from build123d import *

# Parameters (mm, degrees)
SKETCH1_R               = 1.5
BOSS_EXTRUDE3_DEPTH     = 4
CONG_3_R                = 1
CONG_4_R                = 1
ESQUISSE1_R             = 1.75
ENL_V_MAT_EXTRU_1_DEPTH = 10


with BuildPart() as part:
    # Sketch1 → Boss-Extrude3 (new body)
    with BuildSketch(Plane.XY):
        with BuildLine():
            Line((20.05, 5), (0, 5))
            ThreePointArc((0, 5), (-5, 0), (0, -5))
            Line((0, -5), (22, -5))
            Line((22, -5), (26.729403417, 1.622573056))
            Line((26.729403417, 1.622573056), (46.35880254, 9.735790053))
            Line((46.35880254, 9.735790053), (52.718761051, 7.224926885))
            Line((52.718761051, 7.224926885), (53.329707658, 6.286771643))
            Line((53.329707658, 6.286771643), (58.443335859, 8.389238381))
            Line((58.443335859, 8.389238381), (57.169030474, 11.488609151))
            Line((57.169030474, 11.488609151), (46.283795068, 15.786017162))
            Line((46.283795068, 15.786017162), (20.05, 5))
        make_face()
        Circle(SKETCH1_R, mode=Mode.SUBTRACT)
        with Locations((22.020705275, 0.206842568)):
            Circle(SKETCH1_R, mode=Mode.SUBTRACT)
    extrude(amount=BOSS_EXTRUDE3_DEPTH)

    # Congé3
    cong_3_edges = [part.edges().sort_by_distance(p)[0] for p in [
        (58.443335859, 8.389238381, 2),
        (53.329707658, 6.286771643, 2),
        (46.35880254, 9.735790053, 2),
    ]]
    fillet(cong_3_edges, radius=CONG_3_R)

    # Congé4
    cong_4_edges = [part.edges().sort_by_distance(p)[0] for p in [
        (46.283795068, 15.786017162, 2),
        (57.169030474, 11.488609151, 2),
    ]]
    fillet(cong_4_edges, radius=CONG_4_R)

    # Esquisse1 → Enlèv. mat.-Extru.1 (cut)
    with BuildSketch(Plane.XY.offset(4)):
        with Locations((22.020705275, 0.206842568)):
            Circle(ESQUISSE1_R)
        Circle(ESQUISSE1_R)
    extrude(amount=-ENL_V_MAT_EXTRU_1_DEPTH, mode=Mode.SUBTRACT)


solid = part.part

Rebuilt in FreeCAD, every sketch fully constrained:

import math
import FreeCAD as App
import Part
import Sketcher
Q = App.Units.Quantity


def edges_at(feature, points):
    """Names of the edges that pass closest to the given points."""
    edges = feature.Shape.Edges
    near = lambda p: min(range(len(edges)), key=lambda i: edges[i].distToShape(Part.Vertex(*p))[0])
    return sorted({f"Edge{near(p) + 1}" for p in points})

doc = App.newDocument("Part")
params = doc.addObject("Spreadsheet::Sheet", "Params")
for row, (alias, value) in enumerate([
    ("sketch1_diameter", "3 mm"),
    ("sketch1_radius", "5 mm"),
    ("sketch1_width", "22 mm"),
    ("sketch1_width2", "20.05 mm"),
    ("sketch1_length", "21.24 mm"),
    ("pad1_length", "4 mm"),
    ("fillet_radius", "1 mm"),
    ("fillet2_radius", "1 mm"),
    ("sketch2_diameter", "3.5 mm"),
    ("pocket1_length", "10 mm"),
], start=1):
    params.set(f"A{row}", alias)
    params.set(f"B{row}", "=" + value)
    params.setAlias(f"B{row}", alias)

body = doc.addObject("PartDesign::Body", "Body")

# Sketch on XY plane
sketch1 = body.newObject("Sketcher::SketchObject", "Sketch")
sketch1.AttachmentSupport = (doc.getObject("XY_Plane"), [""])
sketch1.MapMode = "FlatFace"
sketch1.addGeometry(Part.LineSegment(App.Vector(20.05, 5, 0), App.Vector(0, 5, 0)), False)
sketch1.addGeometry(Part.ArcOfCircle(Part.Circle(App.Vector(0, 0, 0), App.Vector(0, 0, 1), 5), math.radians(90), math.radians(270)), False)
sketch1.addGeometry(Part.LineSegment(App.Vector(0, -5, 0), App.Vector(22, -5, 0)), False)
sketch1.addGeometry(Part.LineSegment(App.Vector(22, -5, 0), App.Vector(26.729403, 1.622573, 0)), False)
sketch1.addGeometry(Part.LineSegment(App.Vector(26.729403, 1.622573, 0), App.Vector(46.358803, 9.73579, 0)), False)
sketch1.addGeometry(Part.LineSegment(App.Vector(46.358803, 9.73579, 0), App.Vector(52.718761, 7.224927, 0)), False)
sketch1.addGeometry(Part.LineSegment(App.Vector(52.718761, 7.224927, 0), App.Vector(53.329708, 6.286772, 0)), False)
sketch1.addGeometry(Part.LineSegment(App.Vector(53.329708, 6.286772, 0), App.Vector(58.443336, 8.389238, 0)), False)
sketch1.addGeometry(Part.LineSegment(App.Vector(58.443336, 8.389238, 0), App.Vector(57.16903, 11.488609, 0)), False)
sketch1.addGeometry(Part.LineSegment(App.Vector(57.16903, 11.488609, 0), App.Vector(46.283795, 15.786017, 0)), False)
sketch1.addGeometry(Part.LineSegment(App.Vector(46.283795, 15.786017, 0), App.Vector(20.05, 5, 0)), False)
sketch1.addGeometry(Part.Circle(App.Vector(0, 0, 0), App.Vector(0, 0, 1), 1.5), False)
sketch1.addGeometry(Part.Circle(App.Vector(22.020705, 0.206843, 0), App.Vector(0, 0, 1), 1.5), False)
sketch1.addConstraint(Sketcher.Constraint("Tangent", 0, 2, 1, 1))
sketch1.addConstraint(Sketcher.Constraint("Tangent", 1, 2, 2, 1))
sketch1.addConstraint(Sketcher.Constraint("Coincident", 2, 2, 3, 1))
sketch1.addConstraint(Sketcher.Constraint("Coincident", 3, 2, 4, 1))
sketch1.addConstraint(Sketcher.Constraint("Coincident", 4, 2, 5, 1))
sketch1.addConstraint(Sketcher.Constraint("Coincident", 5, 2, 6, 1))
sketch1.addConstraint(Sketcher.Constraint("Coincident", 6, 2, 7, 1))
sketch1.addConstraint(Sketcher.Constraint("Coincident", 7, 2, 8, 1))
sketch1.addConstraint(Sketcher.Constraint("Coincident", 8, 2, 9, 1))
sketch1.addConstraint(Sketcher.Constraint("Coincident", 9, 2, 10, 1))
sketch1.addConstraint(Sketcher.Constraint("Coincident", 10, 2, 0, 1))
sketch1.addConstraint(Sketcher.Constraint("Horizontal", 0))
sketch1.addConstraint(Sketcher.Constraint("Horizontal", 2))
sketch1.addConstraint(Sketcher.Constraint("Coincident", 1, 3, -1, 1))
sketch1.addConstraint(Sketcher.Constraint("Coincident", 11, 3, -1, 1))
sketch1.addConstraint(Sketcher.Constraint("Equal", 11, 12))
sketch1.addConstraint(Sketcher.Constraint("Perpendicular", 7, 8))
sketch1.addConstraint(Sketcher.Constraint("Parallel", 5, 9))
sketch1.addConstraint(Sketcher.Constraint("Perpendicular", 8, 10))
sketch1.addConstraint(Sketcher.Constraint("Diameter", 11, 3.0))
sketch1.addConstraint(Sketcher.Constraint("Radius", 1, 5.0))
sketch1.addConstraint(Sketcher.Constraint("DistanceX", 2, 1, 2, 2, 22.0))
sketch1.addConstraint(Sketcher.Constraint("DistanceX", 0, 2, 0, 1, 20.05))
sketch1.addConstraint(Sketcher.Constraint("Angle", 7, Q("22.35 deg")))
sketch1.addConstraint(Sketcher.Constraint("Distance", 4, 21.24))
sketch1.addConstraint(Sketcher.Constraint("DistanceX", 12, 3, 3, 2, 4.708698))
sketch1.addConstraint(Sketcher.Constraint("DistanceX", 3, 2, 4, 2, 19.629399))
sketch1.addConstraint(Sketcher.Constraint("DistanceY", 3, 2, 6, 2, 4.664199))
sketch1.addConstraint(Sketcher.Constraint("Distance", 3, 8.137919))
sketch1.addConstraint(Sketcher.Constraint("Distance", 6, 1.119549))
sketch1.addConstraint(Sketcher.Constraint("DistanceY", -1, 1, 4, 2, 9.73579))
sketch1.addConstraint(Sketcher.Constraint("DistanceX", -1, 1, 5, 2, 52.718761))
sketch1.addConstraint(Sketcher.Constraint("DistanceY", -1, 1, 7, 2, 8.389238))
sketch1.addConstraint(Sketcher.Constraint("DistanceX", -1, 1, 8, 2, 57.16903))
sketch1.addConstraint(Sketcher.Constraint("DistanceY", -1, 1, 8, 2, 11.488609))
sketch1.addConstraint(Sketcher.Constraint("DistanceY", 12, 3, 3, 2, 1.41573))
sketch1.setExpression("Constraints[19]", "Params.sketch1_diameter")
sketch1.setExpression("Constraints[20]", "Params.sketch1_radius")
sketch1.setExpression("Constraints[21]", "Params.sketch1_width")
sketch1.setExpression("Constraints[22]", "Params.sketch1_width2")
sketch1.setExpression("Constraints[24]", "Params.sketch1_length")
pad1 = body.newObject("PartDesign::Pad", "Pad")
pad1.Profile = sketch1
pad1.setExpression("Length", "Params.pad1_length")
doc.recompute()

fillet = body.newObject("PartDesign::Fillet", "Fillet")
fillet.Base = (pad1, edges_at(pad1, [(58.443, 8.389, 2), (53.33, 6.287, 2), (46.359, 9.736, 2)]))
fillet.setExpression("Radius", "Params.fillet_radius")
doc.recompute()

fillet2 = body.newObject("PartDesign::Fillet", "Fillet001")
fillet2.Base = (fillet, edges_at(fillet, [(46.284, 15.786, 2), (57.169, 11.489, 2)]))
fillet2.setExpression("Radius", "Params.fillet2_radius")

# Sketch on XY plane
sketch2 = body.newObject("Sketcher::SketchObject", "Sketch001")
sketch2.AttachmentSupport = (doc.getObject("XY_Plane"), [""])
sketch2.MapMode = "FlatFace"
sketch2.AttachmentOffset = App.Placement(App.Vector(0, 0, 4), App.Rotation())
sketch2.addGeometry(Part.Circle(App.Vector(22.020705, 0.206843, 0), App.Vector(0, 0, 1), 1.75), False)
sketch2.addGeometry(Part.Circle(App.Vector(0, 0, 0), App.Vector(0, 0, 1), 1.75), False)
sketch2.addConstraint(Sketcher.Constraint("Coincident", 1, 3, -1, 1))
sketch2.addConstraint(Sketcher.Constraint("Equal", 0, 1))
sketch2.addConstraint(Sketcher.Constraint("Diameter", 0, 3.5))
sketch2.addConstraint(Sketcher.Constraint("DistanceX", -1, 1, 0, 3, 22.020705))
sketch2.addConstraint(Sketcher.Constraint("DistanceY", -1, 1, 0, 3, 0.206843))
sketch2.setExpression("Constraints[2]", "Params.sketch2_diameter")
pocket1 = body.newObject("PartDesign::Pocket", "Pocket")
pocket1.Profile = sketch2
pocket1.setExpression("Length", "Params.pocket1_length")

doc.recompute()
